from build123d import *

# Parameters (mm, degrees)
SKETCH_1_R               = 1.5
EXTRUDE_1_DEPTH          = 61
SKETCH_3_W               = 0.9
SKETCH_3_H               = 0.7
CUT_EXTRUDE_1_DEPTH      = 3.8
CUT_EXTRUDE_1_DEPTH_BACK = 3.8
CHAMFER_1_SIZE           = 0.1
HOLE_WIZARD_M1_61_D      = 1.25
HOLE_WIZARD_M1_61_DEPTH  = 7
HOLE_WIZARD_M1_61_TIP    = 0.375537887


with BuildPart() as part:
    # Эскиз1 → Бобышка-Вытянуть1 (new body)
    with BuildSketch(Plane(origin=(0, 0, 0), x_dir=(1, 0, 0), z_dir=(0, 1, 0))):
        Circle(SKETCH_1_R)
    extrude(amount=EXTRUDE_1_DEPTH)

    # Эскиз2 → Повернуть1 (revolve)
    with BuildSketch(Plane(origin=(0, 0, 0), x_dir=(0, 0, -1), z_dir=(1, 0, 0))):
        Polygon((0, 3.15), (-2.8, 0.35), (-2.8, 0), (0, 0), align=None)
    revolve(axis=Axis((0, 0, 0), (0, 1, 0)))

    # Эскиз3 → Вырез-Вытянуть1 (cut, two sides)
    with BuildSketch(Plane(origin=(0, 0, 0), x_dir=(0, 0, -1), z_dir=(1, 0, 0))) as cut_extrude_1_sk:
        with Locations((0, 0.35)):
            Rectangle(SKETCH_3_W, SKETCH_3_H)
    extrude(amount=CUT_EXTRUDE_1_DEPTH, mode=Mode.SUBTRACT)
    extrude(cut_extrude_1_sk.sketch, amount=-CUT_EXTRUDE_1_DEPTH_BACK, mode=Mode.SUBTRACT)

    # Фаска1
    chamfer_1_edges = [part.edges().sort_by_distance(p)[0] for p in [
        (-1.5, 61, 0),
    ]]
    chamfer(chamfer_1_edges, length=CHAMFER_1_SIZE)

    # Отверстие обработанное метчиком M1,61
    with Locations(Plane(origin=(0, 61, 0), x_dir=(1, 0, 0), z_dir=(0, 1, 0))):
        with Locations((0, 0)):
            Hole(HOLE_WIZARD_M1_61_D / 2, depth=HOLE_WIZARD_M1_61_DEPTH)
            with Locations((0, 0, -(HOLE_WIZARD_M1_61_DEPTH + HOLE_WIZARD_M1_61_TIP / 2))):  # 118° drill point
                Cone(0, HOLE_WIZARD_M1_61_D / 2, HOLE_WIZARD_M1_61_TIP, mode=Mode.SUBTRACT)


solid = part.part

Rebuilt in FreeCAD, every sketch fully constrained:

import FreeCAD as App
import Part
import Sketcher

V = App.Vector
Q = App.Units.Quantity


def edges_at(feature, points):
    """Names of the edges that pass closest to the given points."""
    edges = feature.Shape.Edges
    near = lambda p: min(range(len(edges)), key=lambda i: edges[i].distToShape(Part.Vertex(*p))[0])
    return sorted({f"Edge{near(p) + 1}" for p in points})


def add_polygon(sketch, points):
    """Adds a closed chain of lines whose ends are joined by coincident constraints."""
    first, n = sketch.GeometryCount, len(points)
    for a, b in zip(points, points[1:] + points[:1]):
        sketch.addGeometry(Part.LineSegment(App.Vector(*a, 0), App.Vector(*b, 0)), False)
    for i in range(n):
        sketch.addConstraint(Sketcher.Constraint("Coincident", first + i, 2, first + (i + 1) % n, 1))

doc = App.newDocument("Part")
body = doc.addObject("PartDesign::Body", "Body")

# Sketch on XZ plane
sketch1 = body.newObject("Sketcher::SketchObject", "Sketch")
sketch1.AttachmentSupport = (doc.getObject("XZ_Plane"), [""])
sketch1.MapMode = "FlatFace"
sketch1.addGeometry(Part.Circle(V(0, 0, 0), V(0, 0, 1), 1.5), False)
sketch1.addConstraint([
    Sketcher.Constraint("Coincident", 0, 3, -1, 1),
    Sketcher.Constraint("Diameter", 0, Q("3 mm")),
])
pad1 = body.newObject("PartDesign::Pad", "Pad")
pad1.Profile = sketch1
pad1.Length = 61
pad1.Reversed = True

# Sketch on YZ plane
sketch2 = body.newObject("Sketcher::SketchObject", "Sketch001")
sketch2.AttachmentSupport = (doc.getObject("YZ_Plane"), [""])
sketch2.MapMode = "FlatFace"
add_polygon(sketch2, [(3.15, 0), (0.35, 2.8), (0, 2.8), (0, 0)])  # lines 0-3
sketch2.addConstraint([
    Sketcher.Constraint("Horizontal", 1),
    Sketcher.Constraint("Vertical", 2),
    Sketcher.Constraint("Horizontal", 3),
    Sketcher.Constraint("Coincident", 2, 2, -1, 1),
    Sketcher.Constraint("Angle", 0, Q("135 deg")),
    Sketcher.Constraint("DistanceY", 2, 2, 2, 1, Q("2.8 mm")),
    Sketcher.Constraint("DistanceX", 1, 2, 1, 1, Q("0.35 mm")),
])
revolution = body.newObject("PartDesign::Revolution", "Revolution")
revolution.Profile = sketch2
revolution.ReferenceAxis = (sketch2, ["H_Axis"])
revolution.Angle = 360

# Sketch on YZ plane
sketch3 = body.newObject("Sketcher::SketchObject", "Sketch002")
sketch3.AttachmentSupport = (doc.getObject("YZ_Plane"), [""])
sketch3.MapMode = "FlatFace"
add_polygon(sketch3, [(0.7, 0.5), (0, 0.5), (0, -0.5), (0.7, -0.5)])  # lines 0-3
sketch3.addConstraint([
    Sketcher.Constraint("Horizontal", 0),
    Sketcher.Constraint("Vertical", 1),
    Sketcher.Constraint("Horizontal", 2),
    Sketcher.Constraint("Vertical", 3),
    Sketcher.Constraint("Symmetric", 0, 2, 1, 2, -1, 1),
    Sketcher.Constraint("DistanceX", 0, 2, 0, 1, Q("0.7 mm")),
    Sketcher.Constraint("DistanceY", 1, 2, 1, 1, Q("0.9 mm")),
])
pocket1 = body.newObject("PartDesign::Pocket", "Pocket")
pocket1.Profile = sketch3
pocket1.Type = "ThroughAll"
pocket1.Midplane = True
doc.recompute()

chamfer = body.newObject("PartDesign::Chamfer", "Chamfer")
chamfer.Base = (pocket1, edges_at(pocket1, [(-1.5, 61, 0)]))
chamfer.Size = 0.1

# Sketch on XZ plane
sketch4 = body.newObject("Sketcher::SketchObject", "Sketch003")
sketch4.AttachmentSupport = (doc.getObject("XZ_Plane"), [""])
sketch4.MapMode = "FlatFace"
sketch4.AttachmentOffset = App.Placement(V(0, 0, -61), App.Rotation())
sketch4.addGeometry(Part.Circle(V(0, 0, 0), V(0, 0, 1), 0.6), False)
sketch4.addConstraint([
    Sketcher.Constraint("Coincident", 0, 3, -1, 1),
    Sketcher.Constraint("Diameter", 0, Q("1.25 mm")),
])
doc.recompute()
hole = body.newObject("PartDesign::Hole", "Hole")
hole.Profile = sketch4
hole.ThreadType = "None"
hole.Diameter = 1.25
hole.DepthType = "Dimension"
hole.Depth = 7
hole.DrillPoint = "Angled"
hole.DrillPointAngle = 118
hole.Reversed = True

doc.recompute()
